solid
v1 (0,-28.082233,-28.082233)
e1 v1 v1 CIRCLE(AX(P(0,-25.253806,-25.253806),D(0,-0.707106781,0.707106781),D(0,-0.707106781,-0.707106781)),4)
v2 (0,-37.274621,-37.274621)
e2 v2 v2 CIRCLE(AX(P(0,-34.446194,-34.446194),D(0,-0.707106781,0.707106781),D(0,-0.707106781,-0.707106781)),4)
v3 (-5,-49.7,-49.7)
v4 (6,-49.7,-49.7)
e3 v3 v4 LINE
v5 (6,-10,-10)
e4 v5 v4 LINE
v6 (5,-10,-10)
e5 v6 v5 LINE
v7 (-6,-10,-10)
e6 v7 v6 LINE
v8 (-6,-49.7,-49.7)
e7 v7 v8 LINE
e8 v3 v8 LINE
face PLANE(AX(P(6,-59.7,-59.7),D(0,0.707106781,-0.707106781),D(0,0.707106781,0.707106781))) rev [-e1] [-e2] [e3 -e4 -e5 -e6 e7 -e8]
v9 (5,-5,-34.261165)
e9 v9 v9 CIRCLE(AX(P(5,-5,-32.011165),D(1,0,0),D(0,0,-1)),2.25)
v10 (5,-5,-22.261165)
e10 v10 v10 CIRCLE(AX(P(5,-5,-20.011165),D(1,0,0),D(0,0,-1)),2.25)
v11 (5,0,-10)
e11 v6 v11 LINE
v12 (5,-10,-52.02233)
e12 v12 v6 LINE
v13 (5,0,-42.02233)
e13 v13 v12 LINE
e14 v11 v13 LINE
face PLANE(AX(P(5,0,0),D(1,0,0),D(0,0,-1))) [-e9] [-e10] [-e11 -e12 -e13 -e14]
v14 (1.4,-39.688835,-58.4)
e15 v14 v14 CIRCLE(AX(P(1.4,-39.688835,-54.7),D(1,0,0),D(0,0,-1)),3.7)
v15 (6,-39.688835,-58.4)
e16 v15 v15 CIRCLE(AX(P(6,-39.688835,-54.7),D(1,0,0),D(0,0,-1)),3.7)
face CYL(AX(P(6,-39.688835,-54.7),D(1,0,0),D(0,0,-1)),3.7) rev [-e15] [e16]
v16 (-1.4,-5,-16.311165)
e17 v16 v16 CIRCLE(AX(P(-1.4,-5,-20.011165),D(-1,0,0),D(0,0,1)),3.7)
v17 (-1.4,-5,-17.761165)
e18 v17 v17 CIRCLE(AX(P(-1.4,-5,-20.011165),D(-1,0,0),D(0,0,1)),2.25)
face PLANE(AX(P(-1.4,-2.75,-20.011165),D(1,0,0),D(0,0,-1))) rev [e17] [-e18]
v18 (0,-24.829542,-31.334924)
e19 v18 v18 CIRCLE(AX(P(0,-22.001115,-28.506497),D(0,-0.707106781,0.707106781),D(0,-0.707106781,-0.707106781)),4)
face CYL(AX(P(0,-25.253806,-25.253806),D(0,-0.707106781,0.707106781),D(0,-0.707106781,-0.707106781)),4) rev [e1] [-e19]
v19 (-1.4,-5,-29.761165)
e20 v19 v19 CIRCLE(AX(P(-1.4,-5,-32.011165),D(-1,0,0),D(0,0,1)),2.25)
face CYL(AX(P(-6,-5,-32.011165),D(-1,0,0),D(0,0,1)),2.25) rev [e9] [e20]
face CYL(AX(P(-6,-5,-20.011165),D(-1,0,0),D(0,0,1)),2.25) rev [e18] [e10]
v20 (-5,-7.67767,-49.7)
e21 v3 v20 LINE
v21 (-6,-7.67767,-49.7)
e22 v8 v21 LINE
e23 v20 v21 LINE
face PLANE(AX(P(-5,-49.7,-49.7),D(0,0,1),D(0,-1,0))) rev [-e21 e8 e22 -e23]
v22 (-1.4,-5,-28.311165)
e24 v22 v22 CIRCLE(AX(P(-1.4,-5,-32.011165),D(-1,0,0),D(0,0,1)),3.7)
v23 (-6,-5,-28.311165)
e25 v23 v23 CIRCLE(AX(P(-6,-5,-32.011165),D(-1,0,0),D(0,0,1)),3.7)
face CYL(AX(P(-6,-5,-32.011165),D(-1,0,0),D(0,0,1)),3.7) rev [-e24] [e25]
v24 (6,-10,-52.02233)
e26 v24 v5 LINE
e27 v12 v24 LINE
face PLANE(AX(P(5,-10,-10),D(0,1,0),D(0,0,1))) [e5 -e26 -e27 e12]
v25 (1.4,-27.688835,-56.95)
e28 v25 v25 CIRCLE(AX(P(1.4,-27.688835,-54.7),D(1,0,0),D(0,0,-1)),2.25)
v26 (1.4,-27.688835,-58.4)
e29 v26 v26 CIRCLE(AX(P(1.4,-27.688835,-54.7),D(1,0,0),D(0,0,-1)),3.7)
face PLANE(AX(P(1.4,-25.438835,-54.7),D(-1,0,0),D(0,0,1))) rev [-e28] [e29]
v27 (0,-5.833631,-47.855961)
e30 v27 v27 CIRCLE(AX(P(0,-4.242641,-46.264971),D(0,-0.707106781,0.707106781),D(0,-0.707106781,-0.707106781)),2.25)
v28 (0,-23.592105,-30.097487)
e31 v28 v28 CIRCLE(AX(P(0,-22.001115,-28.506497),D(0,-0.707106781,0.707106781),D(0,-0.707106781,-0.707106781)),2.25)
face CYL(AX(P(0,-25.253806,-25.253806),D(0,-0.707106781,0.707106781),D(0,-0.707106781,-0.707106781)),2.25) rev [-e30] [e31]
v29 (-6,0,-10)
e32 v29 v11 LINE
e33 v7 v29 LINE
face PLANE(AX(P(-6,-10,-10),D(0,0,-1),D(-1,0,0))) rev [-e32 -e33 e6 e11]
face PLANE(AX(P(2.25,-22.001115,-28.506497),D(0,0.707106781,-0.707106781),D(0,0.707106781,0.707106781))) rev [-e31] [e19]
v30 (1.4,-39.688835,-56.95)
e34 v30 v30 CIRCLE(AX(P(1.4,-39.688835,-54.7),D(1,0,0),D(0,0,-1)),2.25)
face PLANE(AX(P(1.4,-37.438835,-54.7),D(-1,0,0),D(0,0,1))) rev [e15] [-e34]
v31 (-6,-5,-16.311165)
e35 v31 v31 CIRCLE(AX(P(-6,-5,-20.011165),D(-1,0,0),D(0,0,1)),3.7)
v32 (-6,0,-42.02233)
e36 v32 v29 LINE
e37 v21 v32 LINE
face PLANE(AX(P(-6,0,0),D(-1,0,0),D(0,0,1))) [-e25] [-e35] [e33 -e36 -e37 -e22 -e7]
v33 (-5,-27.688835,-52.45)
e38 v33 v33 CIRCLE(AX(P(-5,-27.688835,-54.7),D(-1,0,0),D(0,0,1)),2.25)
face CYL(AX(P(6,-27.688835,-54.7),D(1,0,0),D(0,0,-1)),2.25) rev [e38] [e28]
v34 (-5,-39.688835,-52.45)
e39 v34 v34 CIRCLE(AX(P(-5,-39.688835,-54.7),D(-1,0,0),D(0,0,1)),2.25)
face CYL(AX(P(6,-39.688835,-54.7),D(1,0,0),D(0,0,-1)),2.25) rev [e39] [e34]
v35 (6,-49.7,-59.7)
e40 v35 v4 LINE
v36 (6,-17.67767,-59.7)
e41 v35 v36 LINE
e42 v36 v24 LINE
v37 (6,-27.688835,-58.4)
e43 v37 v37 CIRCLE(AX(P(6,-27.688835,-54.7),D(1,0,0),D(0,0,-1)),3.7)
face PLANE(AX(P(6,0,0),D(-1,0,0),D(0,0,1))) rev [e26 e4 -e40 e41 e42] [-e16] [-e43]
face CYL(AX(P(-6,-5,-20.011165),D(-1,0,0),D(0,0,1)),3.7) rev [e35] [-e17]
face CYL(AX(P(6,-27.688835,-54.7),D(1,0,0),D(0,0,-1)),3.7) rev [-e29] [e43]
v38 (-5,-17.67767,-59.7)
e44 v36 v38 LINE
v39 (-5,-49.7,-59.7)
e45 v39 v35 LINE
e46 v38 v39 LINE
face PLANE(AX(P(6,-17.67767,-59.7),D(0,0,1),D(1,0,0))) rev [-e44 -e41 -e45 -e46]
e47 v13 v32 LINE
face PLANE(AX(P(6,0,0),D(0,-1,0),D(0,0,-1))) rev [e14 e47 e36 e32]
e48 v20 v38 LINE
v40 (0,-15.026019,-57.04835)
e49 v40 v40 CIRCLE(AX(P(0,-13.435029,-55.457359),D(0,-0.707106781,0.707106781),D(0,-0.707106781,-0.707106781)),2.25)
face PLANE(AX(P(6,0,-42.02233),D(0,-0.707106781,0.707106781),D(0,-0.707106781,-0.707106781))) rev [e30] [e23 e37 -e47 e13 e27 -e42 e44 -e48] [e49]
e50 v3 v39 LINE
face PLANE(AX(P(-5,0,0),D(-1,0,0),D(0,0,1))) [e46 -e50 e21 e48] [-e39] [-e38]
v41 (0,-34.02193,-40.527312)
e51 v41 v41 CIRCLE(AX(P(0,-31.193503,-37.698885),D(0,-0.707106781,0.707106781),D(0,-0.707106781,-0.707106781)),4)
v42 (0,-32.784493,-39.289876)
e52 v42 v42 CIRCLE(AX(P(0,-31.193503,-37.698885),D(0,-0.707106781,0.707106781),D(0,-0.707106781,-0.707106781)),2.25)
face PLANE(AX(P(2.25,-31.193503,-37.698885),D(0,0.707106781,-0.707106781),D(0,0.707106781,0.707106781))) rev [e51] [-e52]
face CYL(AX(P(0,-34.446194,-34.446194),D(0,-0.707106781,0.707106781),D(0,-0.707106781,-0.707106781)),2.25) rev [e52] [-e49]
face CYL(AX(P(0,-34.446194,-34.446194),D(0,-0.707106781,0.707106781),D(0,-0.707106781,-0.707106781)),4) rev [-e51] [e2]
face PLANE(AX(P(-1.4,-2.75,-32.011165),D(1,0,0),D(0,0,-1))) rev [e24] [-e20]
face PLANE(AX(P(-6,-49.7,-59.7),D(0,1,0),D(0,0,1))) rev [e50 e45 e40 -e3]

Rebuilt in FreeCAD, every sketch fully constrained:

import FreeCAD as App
import Part
import Sketcher
Q = App.Units.Quantity


def add_polygon(sketch, points):
    """Adds a closed chain of lines whose ends are joined by coincident constraints."""
    first, n = sketch.GeometryCount, len(points)
    for a, b in zip(points, points[1:] + points[:1]):
        sketch.addGeometry(Part.LineSegment(App.Vector(*a, 0), App.Vector(*b, 0)), False)
    for i in range(n):
        sketch.addConstraint(Sketcher.Constraint("Coincident", first + i, 2, first + (i + 1) % n, 1))

doc = App.newDocument("Part")
body = doc.addObject("PartDesign::Body", "Body")

# Sketch on YZ plane
sketch1 = body.newObject("Sketcher::SketchObject", "Sketch")
sketch1.AttachmentSupport = (doc.getObject("YZ_Plane"), [""])
sketch1.MapMode = "FlatFace"
add_polygon(sketch1, [(0, -42), (0, 0), (-60, -60), (-18, -60)])  # lines 0-3
sketch1.addConstraint([
    Sketcher.Constraint("Vertical", 0),
    Sketcher.Constraint("Horizontal", 2),
    Sketcher.Constraint("Coincident", 0, 2, -1, 1),
    Sketcher.Constraint("Parallel", 1, 3),
    Sketcher.Constraint("Equal", 2, 0),
    Sketcher.Constraint("Distance", 3, 25.0),
    Sketcher.Constraint("DistanceX", 1, 2, -1, 1, 59.7),
])
pad1 = body.newObject("PartDesign::Pad", "Pad")
pad1.Profile = sketch1
pad1.Length = 12
pad1.Midplane = True

# Sketch on an angled plane
sketch2 = body.newObject("Sketcher::SketchObject", "Sketch001")
sketch2.Placement = App.Placement(App.Vector(0, 0, 0), App.Rotation(App.Vector(1, 0, 0), App.Vector(0, 0.707106781, 0.707106781), App.Vector(0, -0.707106781, 0.707106781), "ZXY"))
sketch2.addGeometry([
    Part.Circle(App.Vector(0, -35.7, 0), App.Vector(0, 0, 1), 2.2),
    Part.Circle(App.Vector(0, -48.7, 0), App.Vector(0, 0, 1), 2.2),
], False)
sketch2.addConstraint([
    Sketcher.Constraint("Equal", 0, 1),
    Sketcher.Constraint("PointOnObject", 0, 3, -2),
    Sketcher.Constraint("PointOnObject", 1, 3, -2),
    Sketcher.Constraint("Diameter", 0, 4.5),
    Sketcher.Constraint("DistanceY", 1, 3, 0, 3, 13.0),
    Sketcher.Constraint("DistanceY", 0, 3, -1, 1, 35.714275),
])
doc.recompute()
hole = body.newObject("PartDesign::Hole", "Hole")
hole.Profile = sketch2
hole.ThreadType = "None"
hole.Diameter = 4.5
hole.DepthType = "ThroughAll"
hole.HoleCutType = "Counterbore"
hole.HoleCutDiameter = 8
hole.HoleCutDepth = 4.6

# Sketch on YZ plane
sketch3 = body.newObject("Sketcher::SketchObject", "Sketch002")
sketch3.AttachmentSupport = (doc.getObject("YZ_Plane"), [""])
sketch3.MapMode = "FlatFace"
sketch3.AttachmentOffset = App.Placement(App.Vector(0, 0, 6), App.Rotation())
add_polygon(sketch3, [(0, 0), (0, -42), (-10, -52), (-10, -10)])  # lines 0-3
sketch3.addConstraint([
    Sketcher.Constraint("Vertical", 0),
    Sketcher.Constraint("Vertical", 2),
    Sketcher.Constraint("Coincident", 3, 2, -1, 1),
    Sketcher.Constraint("Parallel", 1, 3),
    Sketcher.Constraint("Angle", 1, Q("-135 deg")),
    Sketcher.Constraint("DistanceX", 1, 2, -1, 1, 10.0),
    Sketcher.Constraint("DistanceY", 0, 2, 0, 1, 42.02233),
])
pocket1 = body.newObject("PartDesign::Pocket", "Pocket")
pocket1.Profile = sketch3
pocket1.Length = 1

# Sketch on YZ plane
sketch4 = body.newObject("Sketcher::SketchObject", "Sketch003")
sketch4.AttachmentSupport = (doc.getObject("YZ_Plane"), [""])
sketch4.MapMode = "FlatFace"
sketch4.AttachmentOffset = App.Placement(App.Vector(0, 0, -6), App.Rotation())
add_polygon(sketch4, [(-18, -60), (-60, -60), (-50, -50), (-8, -50)])  # lines 0-3
sketch4.addConstraint([
    Sketcher.Constraint("Horizontal", 0),
    Sketcher.Constraint("Horizontal", 2),
    Sketcher.Constraint("Parallel", 1, 3),
    Sketcher.Constraint("Angle", 1, Q("45 deg")),
    Sketcher.Constraint("DistanceX", 0, 2, 1, 2, 10.0),
    Sketcher.Constraint("DistanceX", 0, 2, -1, 1, 59.7),
    Sketcher.Constraint("DistanceY", 0, 2, -1, 1, 59.7),
    Sketcher.Constraint("DistanceX", 0, 2, 0, 1, 42.02233),
])
pocket2 = body.newObject("PartDesign::Pocket", "Pocket001")
pocket2.Profile = sketch4
pocket2.Length = 1
pocket2.Reversed = True

# Sketch on YZ plane
sketch5 = body.newObject("Sketcher::SketchObject", "Sketch004")
sketch5.AttachmentSupport = (doc.getObject("YZ_Plane"), [""])
sketch5.MapMode = "FlatFace"
sketch5.AttachmentOffset = App.Placement(App.Vector(0, 0, -6), App.Rotation())
sketch5.addGeometry([
    Part.Circle(App.Vector(-5, -20, 0), App.Vector(0, 0, 1), 2.2),
    Part.Circle(App.Vector(-5, -32, 0), App.Vector(0, 0, 1), 2.2),
], False)
sketch5.addConstraint([
    Sketcher.Constraint("Equal", 0, 1),
    Sketcher.Constraint("Vertical", 0, 3, 1, 3),
    Sketcher.Constraint("Diameter", 0, 4.5),
    Sketcher.Constraint("DistanceX", 0, 3, -1, 1, 5.0),
    Sketcher.Constraint("DistanceY", 1, 3, 0, 3, 12.0),
    Sketcher.Constraint("DistanceY", 0, 3, -1, 1, 20.011165),
])
doc.recompute()
hole2 = body.newObject("PartDesign::Hole", "Hole001")
hole2.Profile = sketch5
hole2.ThreadType = "None"
hole2.Diameter = 4.5
hole2.DepthType = "ThroughAll"
hole2.HoleCutType = "Counterbore"
hole2.HoleCutDiameter = 7.4
hole2.HoleCutDepth = 4.6
hole2.Reversed = True

# Sketch on YZ plane
sketch6 = body.newObject("Sketcher::SketchObject", "Sketch005")
sketch6.AttachmentSupport = (doc.getObject("YZ_Plane"), [""])
sketch6.MapMode = "FlatFace"
sketch6.AttachmentOffset = App.Placement(App.Vector(0, 0, 6), App.Rotation())
sketch6.addGeometry([
    Part.Circle(App.Vector(-39.7, -54.7, 0), App.Vector(0, 0, 1), 2.2),
    Part.Circle(App.Vector(-27.7, -54.7, 0), App.Vector(0, 0, 1), 2.2),
], False)
sketch6.addConstraint([
    Sketcher.Constraint("Equal", 0, 1),
    Sketcher.Constraint("Horizontal", 0, 3, 1, 3),
    Sketcher.Constraint("Diameter", 0, 4.5),
    Sketcher.Constraint("DistanceX", 0, 3, 1, 3, 12.0),
    Sketcher.Constraint("DistanceY", 0, 3, -1, 1, 54.7),
    Sketcher.Constraint("DistanceX", 0, 3, -1, 1, 39.688835),
])
doc.recompute()
hole3 = body.newObject("PartDesign::Hole", "Hole002")
hole3.Profile = sketch6
hole3.ThreadType = "None"
hole3.Diameter = 4.5
hole3.DepthType = "ThroughAll"
hole3.HoleCutType = "Counterbore"
hole3.HoleCutDiameter = 7.4
hole3.HoleCutDepth = 4.6

# Sketch on YZ plane
sketch7 = body.newObject("Sketcher::SketchObject", "Sketch006")
sketch7.AttachmentSupport = (doc.getObject("YZ_Plane"), [""])
sketch7.MapMode = "FlatFace"
sketch7.AttachmentOffset = App.Placement(App.Vector(0, 0, 6), App.Rotation())
add_polygon(sketch7, [(-10, -10), (0, -10), (0, 0)])  # lines 0-2
add_polygon(sketch7, [(-60, -60), (-50, -60), (-50, -50)])  # lines 3-5
sketch7.addConstraint([
    Sketcher.Constraint("Horizontal", 0),
    Sketcher.Constraint("Vertical", 1),
    Sketcher.Constraint("Horizontal", 3),
    Sketcher.Constraint("Vertical", 4),
    Sketcher.Constraint("Coincident", 1, 2, -1, 1),
    Sketcher.Constraint("Parallel", 2, 5),
    Sketcher.Constraint("Equal", 0, 3),
    Sketcher.Constraint("Equal", 3, 1),
    Sketcher.Constraint("DistanceX", 0, 1, 0, 2, 10.0),
    Sketcher.Constraint("DistanceX", 3, 2, -1, 1, 49.7),
    Sketcher.Constraint("DistanceY", 3, 2, -1, 1, 59.7),
])
pocket3 = body.newObject("PartDesign::Pocket", "Pocket002")
pocket3.Profile = sketch7
pocket3.Type = "ThroughAll"

doc.recompute()
